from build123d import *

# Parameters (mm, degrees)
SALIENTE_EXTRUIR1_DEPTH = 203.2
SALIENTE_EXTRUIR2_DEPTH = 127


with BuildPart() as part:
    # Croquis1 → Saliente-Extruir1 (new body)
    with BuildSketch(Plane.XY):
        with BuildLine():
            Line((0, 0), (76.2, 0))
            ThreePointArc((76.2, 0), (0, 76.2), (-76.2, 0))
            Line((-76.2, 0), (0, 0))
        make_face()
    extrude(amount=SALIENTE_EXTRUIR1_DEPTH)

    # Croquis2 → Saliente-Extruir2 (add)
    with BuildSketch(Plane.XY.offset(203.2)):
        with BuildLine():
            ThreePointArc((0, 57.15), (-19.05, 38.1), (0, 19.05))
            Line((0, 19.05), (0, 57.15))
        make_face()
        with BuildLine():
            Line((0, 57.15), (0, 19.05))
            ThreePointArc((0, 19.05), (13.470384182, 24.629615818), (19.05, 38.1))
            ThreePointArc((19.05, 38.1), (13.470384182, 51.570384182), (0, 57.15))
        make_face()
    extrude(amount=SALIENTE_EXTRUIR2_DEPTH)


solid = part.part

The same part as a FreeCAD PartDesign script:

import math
import FreeCAD as App
import Part
import Sketcher
Q = App.Units.Quantity

doc = App.newDocument("Part")
body = doc.addObject("PartDesign::Body", "Body")

# Sketch on XY plane
sketch1 = doc.addObject("Sketcher::SketchObject", "Sketch")
body.addObject(sketch1)
sketch1.AttachmentSupport = (doc.XY_Plane, [""])
sketch1.MapMode = "FlatFace"
sketch1.addGeometry([
    Part.ArcOfCircle(Part.Circle(App.Vector(0, 0, 0), App.Vector(0, 0, 1), 76), math.radians(0), math.radians(180)),
    Part.LineSegment(App.Vector(-76, 0, 0), App.Vector(76, 0, 0)),
], False)
sketch1.addConstraint([
    Sketcher.Constraint("Coincident", 0, 1, 1, 2),
    Sketcher.Constraint("Coincident", 1, 1, 0, 2),
    Sketcher.Constraint("Horizontal", 1),
    Sketcher.Constraint("Coincident", 0, 3, -1, 1),
    Sketcher.Constraint("PointOnObject", 0, 1, -1),
    Sketcher.Constraint("Radius", 0, Q("3 in")),
])
pad1 = doc.addObject("PartDesign::Pad", "Pad")
body.addObject(pad1)
pad1.Profile = sketch1
pad1.Length = Q("8 in")

# Sketch on XY plane
sketch2 = doc.addObject("Sketcher::SketchObject", "Sketch001")
body.addObject(sketch2)
sketch2.AttachmentSupport = (doc.XY_Plane, [""])
sketch2.MapMode = "FlatFace"
sketch2.AttachmentOffset = App.Placement(App.Vector(0, 0, 8 * 25.4), App.Rotation())
sketch2.addGeometry([
    Part.ArcOfCircle(Part.Circle(App.Vector(0, 38, 0), App.Vector(0, 0, 1), 19), math.radians(90), math.radians(270)),
    Part.ArcOfCircle(Part.Circle(App.Vector(0, 38, 0), App.Vector(0, 0, 1), 19), math.radians(-90), math.radians(0)),
    Part.ArcOfCircle(Part.Circle(App.Vector(0, 38, 0), App.Vector(0, 0, 1), 19), math.radians(0), math.radians(90)),
], False)
sketch2.addConstraint([
    Sketcher.Constraint("Tangent", 0, 2, 1, 1),
    Sketcher.Constraint("Tangent", 1, 2, 2, 1),
    Sketcher.Constraint("Tangent", 2, 2, 0, 1),
    Sketcher.Constraint("PointOnObject", 0, 3, -2),
    Sketcher.Constraint("PointOnObject", 0, 2, -2),
    Sketcher.Constraint("PointOnObject", 2, 2, -2),
    Sketcher.Constraint("Horizontal", 2, 3, 1, 2),
    Sketcher.Constraint("Radius", 0, Q("0.75 in")),
    Sketcher.Constraint("DistanceY", -1, 1, 0, 3, Q("1.5 in")),
])
pad2 = doc.addObject("PartDesign::Pad", "Pad001")
body.addObject(pad2)
pad2.Profile = sketch2
pad2.Length = Q("5 in")

doc.recompute()
